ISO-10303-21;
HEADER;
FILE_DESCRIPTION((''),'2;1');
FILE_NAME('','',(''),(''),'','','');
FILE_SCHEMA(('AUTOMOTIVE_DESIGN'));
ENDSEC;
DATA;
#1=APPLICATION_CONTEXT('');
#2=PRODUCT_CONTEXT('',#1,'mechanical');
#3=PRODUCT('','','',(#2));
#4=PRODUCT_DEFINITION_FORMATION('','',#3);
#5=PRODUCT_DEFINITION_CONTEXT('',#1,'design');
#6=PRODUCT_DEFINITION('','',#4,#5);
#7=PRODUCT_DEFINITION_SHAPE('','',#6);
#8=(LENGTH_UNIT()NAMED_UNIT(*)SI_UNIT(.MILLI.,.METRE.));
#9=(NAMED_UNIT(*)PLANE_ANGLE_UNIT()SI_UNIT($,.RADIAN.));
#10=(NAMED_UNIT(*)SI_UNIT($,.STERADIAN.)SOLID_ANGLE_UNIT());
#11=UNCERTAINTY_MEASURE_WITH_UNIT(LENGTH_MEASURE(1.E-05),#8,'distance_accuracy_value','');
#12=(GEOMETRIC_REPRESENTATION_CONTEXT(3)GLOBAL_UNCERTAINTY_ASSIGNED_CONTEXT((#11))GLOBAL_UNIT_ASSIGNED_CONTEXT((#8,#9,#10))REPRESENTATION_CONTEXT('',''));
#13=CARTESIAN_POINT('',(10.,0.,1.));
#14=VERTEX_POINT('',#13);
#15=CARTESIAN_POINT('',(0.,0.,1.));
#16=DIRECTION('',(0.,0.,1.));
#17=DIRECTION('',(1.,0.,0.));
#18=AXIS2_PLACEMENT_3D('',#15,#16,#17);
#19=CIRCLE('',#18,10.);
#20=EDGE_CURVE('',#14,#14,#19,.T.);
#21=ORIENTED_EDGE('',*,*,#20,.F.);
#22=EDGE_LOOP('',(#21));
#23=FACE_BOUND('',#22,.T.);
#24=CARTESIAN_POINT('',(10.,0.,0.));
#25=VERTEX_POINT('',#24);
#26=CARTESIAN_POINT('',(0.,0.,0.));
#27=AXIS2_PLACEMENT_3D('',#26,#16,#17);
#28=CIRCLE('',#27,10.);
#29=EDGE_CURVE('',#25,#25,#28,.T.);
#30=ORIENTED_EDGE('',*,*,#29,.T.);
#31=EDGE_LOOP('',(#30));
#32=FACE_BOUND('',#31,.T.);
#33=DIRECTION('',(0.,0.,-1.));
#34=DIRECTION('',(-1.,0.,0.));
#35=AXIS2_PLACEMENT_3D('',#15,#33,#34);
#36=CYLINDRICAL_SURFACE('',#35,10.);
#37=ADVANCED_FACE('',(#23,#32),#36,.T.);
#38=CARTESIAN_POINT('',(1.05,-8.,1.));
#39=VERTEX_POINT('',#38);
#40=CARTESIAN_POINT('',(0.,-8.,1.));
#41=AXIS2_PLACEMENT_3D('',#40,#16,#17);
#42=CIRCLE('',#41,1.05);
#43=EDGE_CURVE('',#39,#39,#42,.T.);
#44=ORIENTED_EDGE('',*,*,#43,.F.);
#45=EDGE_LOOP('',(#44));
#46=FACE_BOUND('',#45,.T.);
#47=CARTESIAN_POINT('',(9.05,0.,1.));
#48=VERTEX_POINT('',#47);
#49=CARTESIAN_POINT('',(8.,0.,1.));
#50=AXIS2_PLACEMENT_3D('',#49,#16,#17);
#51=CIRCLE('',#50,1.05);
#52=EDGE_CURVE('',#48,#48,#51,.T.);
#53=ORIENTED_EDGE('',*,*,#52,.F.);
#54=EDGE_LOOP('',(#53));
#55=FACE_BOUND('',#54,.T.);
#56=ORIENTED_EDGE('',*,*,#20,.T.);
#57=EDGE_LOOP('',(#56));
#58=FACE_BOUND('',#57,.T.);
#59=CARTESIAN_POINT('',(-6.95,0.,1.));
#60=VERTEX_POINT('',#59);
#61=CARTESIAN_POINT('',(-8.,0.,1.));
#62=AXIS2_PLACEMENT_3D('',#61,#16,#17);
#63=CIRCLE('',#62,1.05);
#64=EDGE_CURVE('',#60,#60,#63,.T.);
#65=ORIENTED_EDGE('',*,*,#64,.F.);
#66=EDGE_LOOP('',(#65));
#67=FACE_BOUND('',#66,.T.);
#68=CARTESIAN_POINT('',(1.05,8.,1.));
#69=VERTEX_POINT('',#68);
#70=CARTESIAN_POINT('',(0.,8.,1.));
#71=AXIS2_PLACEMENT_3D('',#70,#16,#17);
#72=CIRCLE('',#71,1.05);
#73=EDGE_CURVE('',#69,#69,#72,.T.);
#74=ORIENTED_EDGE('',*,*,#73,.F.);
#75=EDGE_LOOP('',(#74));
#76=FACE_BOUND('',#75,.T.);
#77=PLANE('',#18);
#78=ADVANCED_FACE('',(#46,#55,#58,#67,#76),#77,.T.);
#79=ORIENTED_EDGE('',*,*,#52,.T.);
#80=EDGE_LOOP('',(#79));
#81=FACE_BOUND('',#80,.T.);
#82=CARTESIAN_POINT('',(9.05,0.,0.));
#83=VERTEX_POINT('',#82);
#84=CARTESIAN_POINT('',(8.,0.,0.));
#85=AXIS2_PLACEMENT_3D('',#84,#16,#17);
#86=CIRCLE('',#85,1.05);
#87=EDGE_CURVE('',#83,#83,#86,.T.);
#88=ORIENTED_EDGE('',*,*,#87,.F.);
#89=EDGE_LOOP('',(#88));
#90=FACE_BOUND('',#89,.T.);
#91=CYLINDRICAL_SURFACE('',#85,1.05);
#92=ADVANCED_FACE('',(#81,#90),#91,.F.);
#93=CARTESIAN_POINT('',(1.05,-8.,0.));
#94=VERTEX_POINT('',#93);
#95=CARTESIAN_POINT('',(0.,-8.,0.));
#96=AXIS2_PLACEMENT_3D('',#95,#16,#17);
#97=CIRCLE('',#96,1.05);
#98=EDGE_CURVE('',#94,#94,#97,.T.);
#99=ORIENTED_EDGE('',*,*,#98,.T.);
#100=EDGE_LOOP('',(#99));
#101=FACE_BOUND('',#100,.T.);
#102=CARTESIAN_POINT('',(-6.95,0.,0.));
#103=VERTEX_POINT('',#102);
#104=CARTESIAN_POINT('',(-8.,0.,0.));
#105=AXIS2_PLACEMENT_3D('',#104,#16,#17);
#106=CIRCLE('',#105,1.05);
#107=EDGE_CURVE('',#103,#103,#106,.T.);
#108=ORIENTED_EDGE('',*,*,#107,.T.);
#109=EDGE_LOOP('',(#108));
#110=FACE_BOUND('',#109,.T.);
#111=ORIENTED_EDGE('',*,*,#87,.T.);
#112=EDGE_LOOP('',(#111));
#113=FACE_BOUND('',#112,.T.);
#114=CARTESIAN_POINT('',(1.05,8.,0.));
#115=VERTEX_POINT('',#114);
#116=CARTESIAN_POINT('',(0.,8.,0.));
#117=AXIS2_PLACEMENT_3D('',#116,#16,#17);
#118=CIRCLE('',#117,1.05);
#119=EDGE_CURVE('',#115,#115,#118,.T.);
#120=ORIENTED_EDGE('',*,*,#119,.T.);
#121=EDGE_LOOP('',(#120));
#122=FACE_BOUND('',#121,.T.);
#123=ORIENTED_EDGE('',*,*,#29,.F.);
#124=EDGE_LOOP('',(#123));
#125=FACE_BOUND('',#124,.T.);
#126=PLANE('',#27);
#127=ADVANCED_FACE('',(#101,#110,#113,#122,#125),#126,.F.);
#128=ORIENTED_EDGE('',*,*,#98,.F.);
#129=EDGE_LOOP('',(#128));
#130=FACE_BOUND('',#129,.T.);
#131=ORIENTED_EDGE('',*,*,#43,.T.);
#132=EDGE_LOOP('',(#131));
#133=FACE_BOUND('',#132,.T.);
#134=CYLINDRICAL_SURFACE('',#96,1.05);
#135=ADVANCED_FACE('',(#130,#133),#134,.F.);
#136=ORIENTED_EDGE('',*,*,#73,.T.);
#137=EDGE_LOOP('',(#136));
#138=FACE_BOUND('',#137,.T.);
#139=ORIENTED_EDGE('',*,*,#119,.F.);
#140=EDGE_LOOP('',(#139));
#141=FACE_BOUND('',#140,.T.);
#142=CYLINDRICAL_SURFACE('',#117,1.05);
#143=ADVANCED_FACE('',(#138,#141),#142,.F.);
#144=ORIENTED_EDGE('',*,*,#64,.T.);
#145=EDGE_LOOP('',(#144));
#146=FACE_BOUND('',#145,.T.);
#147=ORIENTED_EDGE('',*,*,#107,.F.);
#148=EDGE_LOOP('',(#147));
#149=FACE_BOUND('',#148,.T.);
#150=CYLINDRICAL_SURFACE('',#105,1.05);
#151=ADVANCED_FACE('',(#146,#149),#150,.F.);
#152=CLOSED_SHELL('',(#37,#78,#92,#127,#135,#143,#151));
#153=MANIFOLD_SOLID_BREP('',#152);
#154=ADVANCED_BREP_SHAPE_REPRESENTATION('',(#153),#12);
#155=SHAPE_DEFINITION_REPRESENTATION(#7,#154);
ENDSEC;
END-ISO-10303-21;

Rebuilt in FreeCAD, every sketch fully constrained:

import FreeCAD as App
import Part
import Sketcher
Q = App.Units.Quantity

doc = App.newDocument("Part")
body = doc.addObject("PartDesign::Body", "Body")

sketch1 = doc.addObject("Sketcher::SketchObject", "Sketch")
body.addObject(sketch1)
sketch1.AttachmentSupport = (doc.XY_Plane, [""])
sketch1.MapMode = "FlatFace"
sketch1.addGeometry(Part.Circle(App.Vector(0, 0, 0), App.Vector(0, 0, 1), 10), False)
sketch1.addConstraint([
    Sketcher.Constraint("Coincident", 0, 3, -1, 1),
    Sketcher.Constraint("Diameter", 0, Q("20 mm")),
])
pad1 = doc.addObject("PartDesign::Pad", "Pad")
body.addObject(pad1)
pad1.Profile = sketch1
pad1.Length = 1

sketch2 = doc.addObject("Sketcher::SketchObject", "Sketch001")
body.addObject(sketch2)
sketch2.AttachmentSupport = (doc.XY_Plane, [""])
sketch2.MapMode = "FlatFace"
sketch2.AttachmentOffset = App.Placement(App.Vector(0, 0, 1), App.Rotation())
sketch2.addGeometry([
    Part.Circle(App.Vector(0, 8, 0), App.Vector(0, 0, 1), 1.1),
    Part.Circle(App.Vector(8, 0, 0), App.Vector(0, 0, 1), 1.1),
    Part.Circle(App.Vector(0, -8, 0), App.Vector(0, 0, 1), 1.1),
    Part.Circle(App.Vector(-8, 0, 0), App.Vector(0, 0, 1), 1.1),
], False)
sketch2.addConstraint([
    Sketcher.Constraint("Equal", 0, 1),
    Sketcher.Constraint("Equal", 1, 2),
    Sketcher.Constraint("Equal", 2, 3),
    Sketcher.Constraint("Symmetric", 0, 3, 2, 3, -1, 1),
    Sketcher.Constraint("Symmetric", 1, 3, 3, 3, -1, 1),
    Sketcher.Constraint("PointOnObject", 0, 3, -2),
    Sketcher.Constraint("PointOnObject", 1, 3, -1),
    Sketcher.Constraint("Diameter", 0, Q("2.1 mm")),
    Sketcher.Constraint("DistanceY", -1, 1, 0, 3, Q("8 mm")),
    Sketcher.Constraint("DistanceX", -1, 1, 1, 3, Q("8 mm")),
])
pocket1 = doc.addObject("PartDesign::Pocket", "Pocket")
body.addObject(pocket1)
pocket1.Profile = sketch2
pocket1.Type = "ThroughAll"

doc.recompute()
